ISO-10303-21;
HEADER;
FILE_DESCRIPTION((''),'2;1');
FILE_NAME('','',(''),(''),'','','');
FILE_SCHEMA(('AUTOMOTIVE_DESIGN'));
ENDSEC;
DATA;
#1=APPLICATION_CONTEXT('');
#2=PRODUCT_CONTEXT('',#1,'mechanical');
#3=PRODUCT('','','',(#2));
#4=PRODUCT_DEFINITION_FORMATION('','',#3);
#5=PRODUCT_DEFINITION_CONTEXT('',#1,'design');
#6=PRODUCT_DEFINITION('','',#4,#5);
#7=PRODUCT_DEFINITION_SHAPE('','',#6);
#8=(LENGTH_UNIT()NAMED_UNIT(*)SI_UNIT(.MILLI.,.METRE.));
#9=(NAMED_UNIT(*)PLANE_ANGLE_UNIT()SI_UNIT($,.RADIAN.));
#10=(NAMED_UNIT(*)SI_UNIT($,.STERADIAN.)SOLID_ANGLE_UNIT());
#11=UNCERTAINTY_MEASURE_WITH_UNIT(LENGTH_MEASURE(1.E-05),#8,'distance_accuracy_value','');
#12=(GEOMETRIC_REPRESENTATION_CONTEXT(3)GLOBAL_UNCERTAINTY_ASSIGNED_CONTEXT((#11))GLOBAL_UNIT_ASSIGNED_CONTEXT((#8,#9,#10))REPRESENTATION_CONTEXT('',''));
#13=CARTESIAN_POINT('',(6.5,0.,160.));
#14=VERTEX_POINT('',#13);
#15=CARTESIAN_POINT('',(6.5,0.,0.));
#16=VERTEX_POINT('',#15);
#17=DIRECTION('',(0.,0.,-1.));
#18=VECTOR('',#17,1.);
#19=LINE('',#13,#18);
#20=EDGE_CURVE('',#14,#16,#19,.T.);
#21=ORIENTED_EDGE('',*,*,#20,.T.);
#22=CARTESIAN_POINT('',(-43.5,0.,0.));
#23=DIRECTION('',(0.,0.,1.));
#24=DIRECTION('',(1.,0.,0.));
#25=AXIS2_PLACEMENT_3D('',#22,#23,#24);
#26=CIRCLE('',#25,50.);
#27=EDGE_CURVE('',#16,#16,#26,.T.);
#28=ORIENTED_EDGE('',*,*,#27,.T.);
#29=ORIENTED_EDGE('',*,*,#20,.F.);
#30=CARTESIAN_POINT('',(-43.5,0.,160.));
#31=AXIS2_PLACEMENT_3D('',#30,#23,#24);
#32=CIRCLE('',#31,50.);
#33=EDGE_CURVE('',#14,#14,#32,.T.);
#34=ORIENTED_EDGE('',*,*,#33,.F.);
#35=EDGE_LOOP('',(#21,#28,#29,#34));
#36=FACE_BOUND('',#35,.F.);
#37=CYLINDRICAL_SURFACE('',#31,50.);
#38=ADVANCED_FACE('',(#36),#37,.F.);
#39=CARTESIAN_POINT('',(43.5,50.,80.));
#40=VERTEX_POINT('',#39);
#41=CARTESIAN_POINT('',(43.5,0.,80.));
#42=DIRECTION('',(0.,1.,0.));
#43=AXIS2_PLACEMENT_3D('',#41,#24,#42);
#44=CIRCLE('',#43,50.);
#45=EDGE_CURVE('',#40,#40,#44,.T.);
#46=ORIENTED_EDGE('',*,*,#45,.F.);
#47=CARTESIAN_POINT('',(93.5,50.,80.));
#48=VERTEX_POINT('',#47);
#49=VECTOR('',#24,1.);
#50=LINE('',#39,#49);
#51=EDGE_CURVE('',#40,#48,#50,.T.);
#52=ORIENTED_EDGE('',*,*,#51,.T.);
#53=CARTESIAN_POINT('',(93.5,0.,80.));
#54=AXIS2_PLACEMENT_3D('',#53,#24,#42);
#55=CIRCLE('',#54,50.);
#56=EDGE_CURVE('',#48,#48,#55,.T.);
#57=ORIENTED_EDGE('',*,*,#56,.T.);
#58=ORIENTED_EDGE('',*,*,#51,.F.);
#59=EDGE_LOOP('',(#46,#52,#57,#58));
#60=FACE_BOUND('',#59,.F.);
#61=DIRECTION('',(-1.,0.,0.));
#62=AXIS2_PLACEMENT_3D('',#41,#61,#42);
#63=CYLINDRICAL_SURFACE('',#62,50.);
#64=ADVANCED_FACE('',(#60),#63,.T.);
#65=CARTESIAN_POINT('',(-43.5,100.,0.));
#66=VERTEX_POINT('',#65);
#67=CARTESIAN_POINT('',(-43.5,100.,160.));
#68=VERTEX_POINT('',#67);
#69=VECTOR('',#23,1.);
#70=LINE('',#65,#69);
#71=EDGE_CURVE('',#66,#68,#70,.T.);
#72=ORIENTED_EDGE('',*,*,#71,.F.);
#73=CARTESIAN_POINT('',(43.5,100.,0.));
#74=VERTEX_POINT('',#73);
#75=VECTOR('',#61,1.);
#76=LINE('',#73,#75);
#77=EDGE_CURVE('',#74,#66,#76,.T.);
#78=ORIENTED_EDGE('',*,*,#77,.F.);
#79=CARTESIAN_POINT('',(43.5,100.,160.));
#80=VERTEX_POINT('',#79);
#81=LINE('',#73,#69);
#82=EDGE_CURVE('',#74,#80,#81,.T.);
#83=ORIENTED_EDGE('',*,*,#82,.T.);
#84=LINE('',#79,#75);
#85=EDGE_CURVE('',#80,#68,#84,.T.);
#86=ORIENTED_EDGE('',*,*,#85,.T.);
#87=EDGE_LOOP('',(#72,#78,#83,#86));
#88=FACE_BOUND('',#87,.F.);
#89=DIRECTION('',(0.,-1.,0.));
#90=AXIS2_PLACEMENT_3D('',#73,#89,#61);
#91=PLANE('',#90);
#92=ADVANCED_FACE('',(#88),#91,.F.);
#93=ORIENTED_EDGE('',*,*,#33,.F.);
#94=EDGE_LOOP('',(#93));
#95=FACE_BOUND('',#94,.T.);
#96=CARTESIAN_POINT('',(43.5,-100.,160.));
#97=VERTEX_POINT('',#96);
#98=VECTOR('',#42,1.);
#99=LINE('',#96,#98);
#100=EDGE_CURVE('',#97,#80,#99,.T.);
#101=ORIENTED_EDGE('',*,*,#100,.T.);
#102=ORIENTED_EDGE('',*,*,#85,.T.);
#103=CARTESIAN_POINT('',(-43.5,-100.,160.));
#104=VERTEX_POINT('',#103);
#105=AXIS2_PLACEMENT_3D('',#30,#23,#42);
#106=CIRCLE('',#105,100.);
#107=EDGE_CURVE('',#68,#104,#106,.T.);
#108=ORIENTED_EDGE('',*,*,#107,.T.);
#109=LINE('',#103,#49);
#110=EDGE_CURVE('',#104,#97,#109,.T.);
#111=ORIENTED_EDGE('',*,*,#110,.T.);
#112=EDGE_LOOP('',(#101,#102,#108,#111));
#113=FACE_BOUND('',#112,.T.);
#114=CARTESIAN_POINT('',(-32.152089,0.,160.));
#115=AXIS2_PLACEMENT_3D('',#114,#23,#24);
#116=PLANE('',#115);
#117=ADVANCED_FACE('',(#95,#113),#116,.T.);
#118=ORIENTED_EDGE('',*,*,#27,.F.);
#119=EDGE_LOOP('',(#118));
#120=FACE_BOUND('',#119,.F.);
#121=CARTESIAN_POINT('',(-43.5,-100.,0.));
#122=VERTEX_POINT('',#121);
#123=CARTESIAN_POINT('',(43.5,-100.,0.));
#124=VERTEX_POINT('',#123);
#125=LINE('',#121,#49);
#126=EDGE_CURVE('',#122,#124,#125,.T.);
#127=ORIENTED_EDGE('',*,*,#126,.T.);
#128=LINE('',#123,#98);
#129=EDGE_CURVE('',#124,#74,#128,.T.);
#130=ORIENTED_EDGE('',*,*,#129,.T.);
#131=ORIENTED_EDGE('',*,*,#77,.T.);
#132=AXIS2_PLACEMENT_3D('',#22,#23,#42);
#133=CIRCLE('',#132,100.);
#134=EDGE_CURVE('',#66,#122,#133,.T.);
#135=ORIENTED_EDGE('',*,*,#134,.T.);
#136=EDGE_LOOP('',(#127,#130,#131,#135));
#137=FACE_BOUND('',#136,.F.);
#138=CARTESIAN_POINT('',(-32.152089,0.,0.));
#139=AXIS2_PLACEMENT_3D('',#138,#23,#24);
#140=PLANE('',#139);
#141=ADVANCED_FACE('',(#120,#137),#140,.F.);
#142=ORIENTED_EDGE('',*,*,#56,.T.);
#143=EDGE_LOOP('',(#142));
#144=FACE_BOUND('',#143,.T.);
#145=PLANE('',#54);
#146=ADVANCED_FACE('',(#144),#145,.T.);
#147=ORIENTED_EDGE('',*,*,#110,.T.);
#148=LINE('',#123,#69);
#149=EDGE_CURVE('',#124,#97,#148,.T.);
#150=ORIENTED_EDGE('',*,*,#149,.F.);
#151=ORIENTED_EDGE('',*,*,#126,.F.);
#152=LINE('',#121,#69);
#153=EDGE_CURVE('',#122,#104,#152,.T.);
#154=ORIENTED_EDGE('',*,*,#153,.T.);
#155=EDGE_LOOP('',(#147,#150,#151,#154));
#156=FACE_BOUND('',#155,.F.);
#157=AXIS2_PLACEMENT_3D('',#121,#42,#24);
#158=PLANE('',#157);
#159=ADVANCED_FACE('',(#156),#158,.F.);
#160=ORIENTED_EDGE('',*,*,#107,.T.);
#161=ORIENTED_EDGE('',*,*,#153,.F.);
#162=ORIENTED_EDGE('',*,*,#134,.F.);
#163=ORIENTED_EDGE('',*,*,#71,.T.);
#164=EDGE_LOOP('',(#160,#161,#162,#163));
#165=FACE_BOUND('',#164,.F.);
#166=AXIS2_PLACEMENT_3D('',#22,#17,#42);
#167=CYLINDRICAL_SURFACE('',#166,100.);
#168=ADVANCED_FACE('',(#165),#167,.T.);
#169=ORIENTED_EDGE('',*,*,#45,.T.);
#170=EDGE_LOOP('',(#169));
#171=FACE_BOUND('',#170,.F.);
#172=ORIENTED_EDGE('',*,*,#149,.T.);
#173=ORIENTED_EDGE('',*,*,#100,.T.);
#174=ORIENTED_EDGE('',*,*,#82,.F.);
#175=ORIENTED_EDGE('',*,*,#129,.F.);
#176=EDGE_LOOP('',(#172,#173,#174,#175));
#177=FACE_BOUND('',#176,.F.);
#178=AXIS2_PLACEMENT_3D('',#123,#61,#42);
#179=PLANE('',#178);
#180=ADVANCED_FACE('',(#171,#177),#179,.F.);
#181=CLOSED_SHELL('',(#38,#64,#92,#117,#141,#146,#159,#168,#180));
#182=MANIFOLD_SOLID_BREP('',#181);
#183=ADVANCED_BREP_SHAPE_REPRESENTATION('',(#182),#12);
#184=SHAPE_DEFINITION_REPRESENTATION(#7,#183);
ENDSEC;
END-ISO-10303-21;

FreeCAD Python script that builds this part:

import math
import FreeCAD as App
import Part
import Sketcher
Q = App.Units.Quantity

doc = App.newDocument("Part")
body = doc.addObject("PartDesign::Body", "Body")

sketch1 = body.newObject("Sketcher::SketchObject", "Sketch")
sketch1.AttachmentSupport = (doc.getObject("XY_Plane"), [""])
sketch1.MapMode = "FlatFace"
sketch1.addGeometry(Part.LineSegment(App.Vector(-44, -100, 0), App.Vector(44, -100, 0)), False)
sketch1.addGeometry(Part.LineSegment(App.Vector(44, -100, 0), App.Vector(44, 100, 0)), False)
sketch1.addGeometry(Part.LineSegment(App.Vector(44, 100, 0), App.Vector(-44, 100, 0)), False)
sketch1.addGeometry(Part.ArcOfCircle(Part.Circle(App.Vector(-44, 0, 0), App.Vector(0, 0, 1), 100), math.radians(90), math.radians(270)), False)
sketch1.addConstraint(Sketcher.Constraint("Coincident", 0, 2, 1, 1))
sketch1.addConstraint(Sketcher.Constraint("Coincident", 1, 2, 2, 1))
sketch1.addConstraint(Sketcher.Constraint("Tangent", 2, 2, 3, 1))
sketch1.addConstraint(Sketcher.Constraint("Tangent", 3, 2, 0, 1))
sketch1.addConstraint(Sketcher.Constraint("Horizontal", 0))
sketch1.addConstraint(Sketcher.Constraint("Vertical", 1))
sketch1.addConstraint(Sketcher.Constraint("Horizontal", 2))
sketch1.addConstraint(Sketcher.Constraint("Symmetric", 0, 2, 2, 2, -1, 1))
sketch1.addConstraint(Sketcher.Constraint("Radius", 3, Q("100 mm")))
sketch1.addConstraint(Sketcher.Constraint("DistanceX", 0, 1, 0, 2, Q("87 mm")))
pad1 = body.newObject("PartDesign::Pad", "Pad")
pad1.Profile = sketch1
pad1.Length = 160

sketch2 = body.newObject("Sketcher::SketchObject", "Sketch001")
sketch2.AttachmentSupport = (doc.getObject("XY_Plane"), [""])
sketch2.MapMode = "FlatFace"
sketch2.AttachmentOffset = App.Placement(App.Vector(0, 0, 160), App.Rotation())
sketch2.addGeometry(Part.Circle(App.Vector(-44, 0, 0), App.Vector(0, 0, 1), 50), False)
sketch2.addConstraint(Sketcher.Constraint("PointOnObject", 0, 3, -1))
sketch2.addConstraint(Sketcher.Constraint("Diameter", 0, Q("100 mm")))
sketch2.addConstraint(Sketcher.Constraint("DistanceX", 0, 3, -1, 1, Q("43.5 mm")))
pocket1 = body.newObject("PartDesign::Pocket", "Pocket")
pocket1.Profile = sketch2
pocket1.Length = 504

sketch3 = body.newObject("Sketcher::SketchObject", "Sketch002")
sketch3.AttachmentSupport = (doc.getObject("YZ_Plane"), [""])
sketch3.MapMode = "FlatFace"
sketch3.AttachmentOffset = App.Placement(App.Vector(0, 0, 43.5), App.Rotation())
sketch3.addGeometry(Part.Circle(App.Vector(0, 80, 0), App.Vector(0, 0, 1), 50), False)
sketch3.addConstraint(Sketcher.Constraint("PointOnObject", 0, 3, -2))
sketch3.addConstraint(Sketcher.Constraint("Diameter", 0, Q("100 mm")))
sketch3.addConstraint(Sketcher.Constraint("DistanceY", -1, 1, 0, 3, Q("80 mm")))
pad2 = body.newObject("PartDesign::Pad", "Pad001")
pad2.Profile = sketch3
pad2.Length = 50

doc.recompute()
